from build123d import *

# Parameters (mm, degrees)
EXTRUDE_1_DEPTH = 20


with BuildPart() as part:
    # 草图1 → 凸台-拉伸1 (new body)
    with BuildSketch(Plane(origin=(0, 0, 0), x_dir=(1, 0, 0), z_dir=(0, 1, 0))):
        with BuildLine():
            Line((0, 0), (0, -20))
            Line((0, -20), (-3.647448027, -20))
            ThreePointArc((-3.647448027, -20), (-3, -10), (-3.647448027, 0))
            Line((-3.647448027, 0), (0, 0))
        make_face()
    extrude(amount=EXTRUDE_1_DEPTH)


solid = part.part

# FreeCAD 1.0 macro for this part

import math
import FreeCAD as App
import Part
import Sketcher
from FreeCAD import Vector

doc = App.newDocument("Part")
body = doc.addObject("PartDesign::Body", "Body")

sketch1 = doc.addObject("Sketcher::SketchObject", "Sketch")
body.addObject(sketch1)
sketch1.AttachmentSupport = (doc.XZ_Plane, [""])
sketch1.MapMode = "FlatFace"
sketch1.addGeometry(Part.LineSegment(Vector(0, 20, 0), Vector(0, 0, 0)), False)
sketch1.addGeometry(Part.LineSegment(Vector(0, 0, 0), Vector(-3.6, 0, 0)), False)
sketch1.addGeometry(Part.ArcOfCircle(Part.Circle(Vector(-80.5, 10, 0), Vector(0, 0, 1), 77.5), math.radians(-7.41), math.radians(7.41)), False)
sketch1.addGeometry(Part.LineSegment(Vector(-3.6, 20, 0), Vector(0, 20, 0)), False)
sketch1.addConstraint(Sketcher.Constraint("Coincident", 0, 2, 1, 1))
sketch1.addConstraint(Sketcher.Constraint("Coincident", 1, 2, 2, 1))
sketch1.addConstraint(Sketcher.Constraint("Coincident", 2, 2, 3, 1))
sketch1.addConstraint(Sketcher.Constraint("Coincident", 3, 2, 0, 1))
sketch1.addConstraint(Sketcher.Constraint("Vertical", 0))
sketch1.addConstraint(Sketcher.Constraint("Horizontal", 1))
sketch1.addConstraint(Sketcher.Constraint("Horizontal", 3))
sketch1.addConstraint(Sketcher.Constraint("Coincident", 0, 2, -1, 1))
sketch1.addConstraint(Sketcher.Constraint("Vertical", 1, 2, 2, 2))
sketch1.addConstraint(Sketcher.Constraint("DistanceY", 0, 2, 0, 1, 20.0))
sketch1.addConstraint(Sketcher.Constraint("Radius", 2, 77.55))
sketch1.addConstraint(Sketcher.Constraint("DistanceX", 2, 3, -1, 1, 80.55))
pad1 = doc.addObject("PartDesign::Pad", "Pad")
body.addObject(pad1)
pad1.Profile = sketch1
pad1.Length = 20
pad1.Reversed = True

doc.recompute()
